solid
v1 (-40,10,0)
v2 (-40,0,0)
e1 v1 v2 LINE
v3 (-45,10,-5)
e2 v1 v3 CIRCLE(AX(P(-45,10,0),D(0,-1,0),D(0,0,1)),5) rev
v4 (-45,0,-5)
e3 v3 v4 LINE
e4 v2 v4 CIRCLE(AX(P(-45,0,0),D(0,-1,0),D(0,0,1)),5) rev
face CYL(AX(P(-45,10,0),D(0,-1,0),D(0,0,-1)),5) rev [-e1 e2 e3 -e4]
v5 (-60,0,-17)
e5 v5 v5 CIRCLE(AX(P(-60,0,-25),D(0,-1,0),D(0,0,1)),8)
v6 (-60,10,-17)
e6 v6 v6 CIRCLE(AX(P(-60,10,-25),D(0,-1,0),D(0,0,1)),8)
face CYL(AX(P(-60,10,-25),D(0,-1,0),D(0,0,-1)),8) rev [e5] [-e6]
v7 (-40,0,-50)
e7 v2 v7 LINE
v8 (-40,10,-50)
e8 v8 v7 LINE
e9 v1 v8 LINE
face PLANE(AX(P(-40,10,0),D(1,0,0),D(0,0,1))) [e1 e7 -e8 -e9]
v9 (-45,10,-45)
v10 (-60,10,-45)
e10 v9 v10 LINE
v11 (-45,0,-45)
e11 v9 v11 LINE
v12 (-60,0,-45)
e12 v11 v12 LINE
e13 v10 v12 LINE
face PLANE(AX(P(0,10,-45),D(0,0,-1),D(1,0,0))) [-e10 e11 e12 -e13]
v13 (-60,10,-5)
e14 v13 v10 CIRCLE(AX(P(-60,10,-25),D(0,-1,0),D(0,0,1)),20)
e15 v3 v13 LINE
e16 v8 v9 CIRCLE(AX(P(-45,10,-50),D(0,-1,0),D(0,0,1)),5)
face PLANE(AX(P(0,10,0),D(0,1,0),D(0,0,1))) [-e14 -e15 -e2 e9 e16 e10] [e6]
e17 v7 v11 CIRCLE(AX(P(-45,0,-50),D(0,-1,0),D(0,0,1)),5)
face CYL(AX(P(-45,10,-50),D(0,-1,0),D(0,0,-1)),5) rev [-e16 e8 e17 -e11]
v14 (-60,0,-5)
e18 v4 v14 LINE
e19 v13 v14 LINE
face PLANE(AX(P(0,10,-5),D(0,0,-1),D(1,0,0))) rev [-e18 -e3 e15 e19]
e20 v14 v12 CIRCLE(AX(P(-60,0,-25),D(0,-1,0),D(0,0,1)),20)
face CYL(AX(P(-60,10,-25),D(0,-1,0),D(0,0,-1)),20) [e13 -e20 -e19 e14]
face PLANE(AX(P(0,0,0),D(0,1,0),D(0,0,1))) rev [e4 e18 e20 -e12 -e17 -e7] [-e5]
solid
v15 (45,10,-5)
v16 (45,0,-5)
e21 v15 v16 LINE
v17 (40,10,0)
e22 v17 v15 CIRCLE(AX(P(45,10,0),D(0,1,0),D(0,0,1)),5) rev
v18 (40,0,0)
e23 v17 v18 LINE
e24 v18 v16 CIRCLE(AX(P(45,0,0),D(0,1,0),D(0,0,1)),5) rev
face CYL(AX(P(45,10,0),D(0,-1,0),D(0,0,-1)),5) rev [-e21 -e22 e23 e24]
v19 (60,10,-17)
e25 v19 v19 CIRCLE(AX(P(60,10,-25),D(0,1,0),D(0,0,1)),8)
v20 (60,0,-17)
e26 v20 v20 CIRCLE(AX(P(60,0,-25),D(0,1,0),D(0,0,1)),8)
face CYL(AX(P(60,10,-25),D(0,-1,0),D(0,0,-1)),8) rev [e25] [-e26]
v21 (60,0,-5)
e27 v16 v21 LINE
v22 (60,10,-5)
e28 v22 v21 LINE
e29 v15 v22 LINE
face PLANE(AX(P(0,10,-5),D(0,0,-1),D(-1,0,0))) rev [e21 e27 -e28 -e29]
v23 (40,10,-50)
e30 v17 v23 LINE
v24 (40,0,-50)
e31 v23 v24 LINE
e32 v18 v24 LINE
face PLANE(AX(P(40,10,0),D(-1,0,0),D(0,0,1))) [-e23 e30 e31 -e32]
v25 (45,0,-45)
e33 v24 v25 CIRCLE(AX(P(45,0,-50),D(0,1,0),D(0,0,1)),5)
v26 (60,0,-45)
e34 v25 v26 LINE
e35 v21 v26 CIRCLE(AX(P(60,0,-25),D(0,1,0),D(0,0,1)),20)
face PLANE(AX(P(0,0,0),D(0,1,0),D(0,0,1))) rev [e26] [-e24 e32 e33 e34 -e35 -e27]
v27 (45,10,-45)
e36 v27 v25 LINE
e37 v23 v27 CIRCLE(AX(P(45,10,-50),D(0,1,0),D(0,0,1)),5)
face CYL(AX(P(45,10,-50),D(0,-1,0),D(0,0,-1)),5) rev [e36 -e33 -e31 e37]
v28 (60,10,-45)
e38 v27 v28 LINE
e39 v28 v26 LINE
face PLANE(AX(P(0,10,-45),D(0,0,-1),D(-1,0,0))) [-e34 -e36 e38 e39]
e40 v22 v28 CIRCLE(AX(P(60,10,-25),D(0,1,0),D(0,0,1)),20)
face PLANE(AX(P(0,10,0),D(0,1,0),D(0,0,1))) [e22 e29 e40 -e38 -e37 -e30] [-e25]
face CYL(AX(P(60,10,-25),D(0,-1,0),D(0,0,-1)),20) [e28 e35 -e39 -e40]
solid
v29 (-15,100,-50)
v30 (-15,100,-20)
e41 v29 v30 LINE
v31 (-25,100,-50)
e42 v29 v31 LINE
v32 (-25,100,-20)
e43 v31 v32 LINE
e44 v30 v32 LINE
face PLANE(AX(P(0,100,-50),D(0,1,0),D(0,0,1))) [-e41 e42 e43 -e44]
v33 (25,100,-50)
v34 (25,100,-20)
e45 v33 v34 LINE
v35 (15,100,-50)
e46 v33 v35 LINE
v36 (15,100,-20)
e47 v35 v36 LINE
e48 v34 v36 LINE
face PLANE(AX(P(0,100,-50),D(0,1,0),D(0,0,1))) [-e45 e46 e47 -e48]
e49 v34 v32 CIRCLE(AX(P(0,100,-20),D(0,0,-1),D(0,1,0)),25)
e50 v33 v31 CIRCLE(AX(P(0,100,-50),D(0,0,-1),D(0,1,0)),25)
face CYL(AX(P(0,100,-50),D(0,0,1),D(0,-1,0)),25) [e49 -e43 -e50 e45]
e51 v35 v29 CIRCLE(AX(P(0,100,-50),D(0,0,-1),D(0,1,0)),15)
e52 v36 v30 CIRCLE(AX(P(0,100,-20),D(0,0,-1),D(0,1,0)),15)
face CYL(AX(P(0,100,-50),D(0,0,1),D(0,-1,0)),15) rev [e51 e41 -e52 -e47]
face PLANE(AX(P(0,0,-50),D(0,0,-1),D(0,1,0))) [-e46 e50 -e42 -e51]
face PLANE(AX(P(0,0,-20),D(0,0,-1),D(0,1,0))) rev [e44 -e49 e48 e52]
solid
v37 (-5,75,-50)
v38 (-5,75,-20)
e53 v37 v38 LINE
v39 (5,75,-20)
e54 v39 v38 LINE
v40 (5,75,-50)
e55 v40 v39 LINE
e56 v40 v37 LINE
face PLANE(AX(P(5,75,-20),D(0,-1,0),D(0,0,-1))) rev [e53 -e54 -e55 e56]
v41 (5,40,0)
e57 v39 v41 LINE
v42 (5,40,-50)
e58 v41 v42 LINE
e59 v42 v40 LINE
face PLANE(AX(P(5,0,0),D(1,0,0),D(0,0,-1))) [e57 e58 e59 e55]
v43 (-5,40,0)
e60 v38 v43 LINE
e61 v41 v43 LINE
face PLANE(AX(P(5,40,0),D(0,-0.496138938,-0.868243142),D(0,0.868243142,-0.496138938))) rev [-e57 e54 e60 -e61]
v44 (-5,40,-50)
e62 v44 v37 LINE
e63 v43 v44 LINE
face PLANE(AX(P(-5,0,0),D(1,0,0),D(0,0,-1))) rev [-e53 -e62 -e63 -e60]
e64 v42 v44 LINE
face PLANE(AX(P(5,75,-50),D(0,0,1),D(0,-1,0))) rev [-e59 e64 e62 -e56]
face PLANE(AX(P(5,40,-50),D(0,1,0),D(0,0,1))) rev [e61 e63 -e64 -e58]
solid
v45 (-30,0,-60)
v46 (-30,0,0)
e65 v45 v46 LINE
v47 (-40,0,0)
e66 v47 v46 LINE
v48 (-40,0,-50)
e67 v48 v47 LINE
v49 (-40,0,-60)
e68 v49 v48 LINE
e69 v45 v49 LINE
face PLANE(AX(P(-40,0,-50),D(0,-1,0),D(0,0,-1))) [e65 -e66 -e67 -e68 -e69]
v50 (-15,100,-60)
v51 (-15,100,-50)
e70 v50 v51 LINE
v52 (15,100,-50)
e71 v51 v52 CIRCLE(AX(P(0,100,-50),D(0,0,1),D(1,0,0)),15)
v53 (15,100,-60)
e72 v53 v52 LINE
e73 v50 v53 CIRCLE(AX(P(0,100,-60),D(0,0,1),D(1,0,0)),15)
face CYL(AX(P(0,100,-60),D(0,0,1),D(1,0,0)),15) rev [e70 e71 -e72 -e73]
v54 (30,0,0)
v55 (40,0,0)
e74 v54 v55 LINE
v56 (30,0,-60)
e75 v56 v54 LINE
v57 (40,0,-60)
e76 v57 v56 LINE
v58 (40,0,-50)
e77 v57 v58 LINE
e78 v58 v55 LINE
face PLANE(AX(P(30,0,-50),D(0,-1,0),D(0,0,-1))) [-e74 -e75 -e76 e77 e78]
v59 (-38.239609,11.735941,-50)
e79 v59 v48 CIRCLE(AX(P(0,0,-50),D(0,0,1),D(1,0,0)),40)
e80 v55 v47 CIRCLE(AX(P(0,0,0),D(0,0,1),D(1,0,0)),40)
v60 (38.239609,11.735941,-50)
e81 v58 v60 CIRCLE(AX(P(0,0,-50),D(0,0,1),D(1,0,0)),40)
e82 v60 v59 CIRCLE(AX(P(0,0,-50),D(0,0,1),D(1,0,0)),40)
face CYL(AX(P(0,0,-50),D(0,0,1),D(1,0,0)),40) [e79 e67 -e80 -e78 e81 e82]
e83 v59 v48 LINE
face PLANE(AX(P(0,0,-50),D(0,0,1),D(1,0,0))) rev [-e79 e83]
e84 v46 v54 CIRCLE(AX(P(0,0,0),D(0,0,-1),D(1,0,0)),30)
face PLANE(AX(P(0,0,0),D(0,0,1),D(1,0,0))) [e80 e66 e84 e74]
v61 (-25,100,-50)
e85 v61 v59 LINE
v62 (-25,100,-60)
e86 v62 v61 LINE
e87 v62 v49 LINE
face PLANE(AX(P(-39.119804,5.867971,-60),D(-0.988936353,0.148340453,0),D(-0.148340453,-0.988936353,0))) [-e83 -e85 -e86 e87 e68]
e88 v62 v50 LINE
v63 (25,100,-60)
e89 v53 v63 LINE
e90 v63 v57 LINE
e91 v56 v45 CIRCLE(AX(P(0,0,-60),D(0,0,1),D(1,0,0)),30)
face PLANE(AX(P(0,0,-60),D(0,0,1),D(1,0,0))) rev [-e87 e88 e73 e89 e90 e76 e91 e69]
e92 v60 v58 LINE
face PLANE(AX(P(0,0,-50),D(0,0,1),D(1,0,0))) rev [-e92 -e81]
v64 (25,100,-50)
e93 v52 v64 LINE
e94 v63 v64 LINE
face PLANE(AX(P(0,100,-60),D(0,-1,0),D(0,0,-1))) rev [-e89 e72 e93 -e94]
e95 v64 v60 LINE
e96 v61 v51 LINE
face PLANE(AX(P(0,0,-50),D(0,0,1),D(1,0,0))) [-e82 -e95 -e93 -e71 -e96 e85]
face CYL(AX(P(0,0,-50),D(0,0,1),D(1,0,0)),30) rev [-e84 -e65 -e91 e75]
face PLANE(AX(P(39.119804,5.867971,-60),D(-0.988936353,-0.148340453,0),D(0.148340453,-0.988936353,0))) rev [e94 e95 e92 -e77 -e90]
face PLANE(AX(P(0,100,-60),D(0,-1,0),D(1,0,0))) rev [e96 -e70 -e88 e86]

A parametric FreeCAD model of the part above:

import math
import FreeCAD as App
import Part
import Sketcher
from FreeCAD import Vector


def add_polygon(sketch, points):
    """Adds a closed chain of lines whose ends are joined by coincident constraints."""
    first, n = sketch.GeometryCount, len(points)
    for a, b in zip(points, points[1:] + points[:1]):
        sketch.addGeometry(Part.LineSegment(App.Vector(*a, 0), App.Vector(*b, 0)), False)
    for i in range(n):
        sketch.addConstraint(Sketcher.Constraint("Coincident", first + i, 2, first + (i + 1) % n, 1))

doc = App.newDocument("Part")
body = doc.addObject("PartDesign::Body", "Body")

# Sketch on XY plane
sketch1 = body.newObject("Sketcher::SketchObject", "Sketch")
sketch1.AttachmentSupport = (doc.getObject("XY_Plane"), [""])
sketch1.MapMode = "FlatFace"
sketch1.addGeometry([
    Part.LineSegment(Vector(-40, 0, 0), Vector(-30, 0, 0)),
    Part.ArcOfCircle(Part.Circle(Vector(0, 0, 0), Vector(0, 0, 1), 30), math.radians(0), math.radians(180)),
    Part.LineSegment(Vector(30, 0, 0), Vector(40, 0, 0)),
    Part.ArcOfCircle(Part.Circle(Vector(0, 0, 0), Vector(0, 0, 1), 40), math.radians(0), math.radians(180)),
], False)
sketch1.addConstraint([
    Sketcher.Constraint("Coincident", 0, 2, 1, 2),
    Sketcher.Constraint("Coincident", 1, 1, 2, 1),
    Sketcher.Constraint("Coincident", 2, 2, 3, 1),
    Sketcher.Constraint("Coincident", 3, 2, 0, 1),
    Sketcher.Constraint("Horizontal", 0),
    Sketcher.Constraint("Horizontal", 2),
    Sketcher.Constraint("Coincident", 1, 3, -1, 1),
    Sketcher.Constraint("Coincident", 3, 3, -1, 1),
    Sketcher.Constraint("PointOnObject", 0, 2, -1),
    Sketcher.Constraint("PointOnObject", 1, 1, -1),
    Sketcher.Constraint("Radius", 1, 30.0),
    Sketcher.Constraint("Radius", 3, 40.0),
])
pad1 = body.newObject("PartDesign::Pad", "Pad")
pad1.Profile = sketch1
pad1.Length = 50
pad1.Reversed = True
body2 = doc.addObject("PartDesign::Body", "Body001")

# Sketch on YZ plane
sketch2 = body2.newObject("Sketcher::SketchObject", "Sketch001")
sketch2.AttachmentSupport = (doc.getObject("YZ_Plane001"), [""])
sketch2.MapMode = "FlatFace"
add_polygon(sketch2, [(75, -20), (40, 0), (40, -50), (75, -50)])  # lines 0-3
sketch2.addConstraint([
    Sketcher.Constraint("Vertical", 1),
    Sketcher.Constraint("Horizontal", 2),
    Sketcher.Constraint("Vertical", 3),
    Sketcher.Constraint("PointOnObject", 0, 2, -1),
    Sketcher.Constraint("DistanceX", 2, 1, 2, 2, 35.0),
    Sketcher.Constraint("DistanceY", 1, 2, 1, 1, 50.0),
    Sketcher.Constraint("DistanceY", 3, 1, 3, 2, 30.0),
    Sketcher.Constraint("DistanceX", -1, 1, 0, 2, 40.0),
])
pad2 = body2.newObject("PartDesign::Pad", "Pad001")
pad2.Profile = sketch2
pad2.Length = 10
pad2.Midplane = True
body3 = doc.addObject("PartDesign::Body", "Body002")

# Sketch on XY plane
sketch3 = body3.newObject("Sketcher::SketchObject", "Sketch002")
sketch3.AttachmentSupport = (doc.getObject("XY_Plane002"), [""])
sketch3.MapMode = "FlatFace"
sketch3.AttachmentOffset = App.Placement(Vector(0, 0, -20), App.Rotation())
sketch3.addGeometry([
    Part.LineSegment(Vector(15, 100, 0), Vector(25, 100, 0)),
    Part.ArcOfCircle(Part.Circle(Vector(0, 100, 0), Vector(0, 0, 1), 25), math.radians(180), math.radians(360)),
    Part.LineSegment(Vector(-25, 100, 0), Vector(-15, 100, 0)),
    Part.ArcOfCircle(Part.Circle(Vector(0, 100, 0), Vector(0, 0, 1), 15), math.radians(180), math.radians(360)),
], False)
sketch3.addConstraint([
    Sketcher.Constraint("Coincident", 0, 2, 1, 2),
    Sketcher.Constraint("Coincident", 1, 1, 2, 1),
    Sketcher.Constraint("Coincident", 2, 2, 3, 1),
    Sketcher.Constraint("Coincident", 3, 2, 0, 1),
    Sketcher.Constraint("Horizontal", 0),
    Sketcher.Constraint("Horizontal", 2),
    Sketcher.Constraint("Coincident", 3, 3, 1, 3),
    Sketcher.Constraint("Symmetric", 0, 2, 1, 1, -2),
    Sketcher.Constraint("Horizontal", 3, 3, 0, 2),
    Sketcher.Constraint("Radius", 1, 25.0),
    Sketcher.Constraint("Radius", 3, 15.0),
    Sketcher.Constraint("DistanceY", -1, 1, 1, 3, 100.0),
])
pad3 = body3.newObject("PartDesign::Pad", "Pad002")
pad3.Profile = sketch3
pad3.Length = 30
pad3.Reversed = True
body4 = doc.addObject("PartDesign::Body", "Body003")

# Sketch on XY plane
sketch4 = body4.newObject("Sketcher::SketchObject", "Sketch003")
sketch4.AttachmentSupport = (doc.getObject("XY_Plane003"), [""])
sketch4.MapMode = "FlatFace"
sketch4.AttachmentOffset = App.Placement(Vector(0, 0, -50), App.Rotation())
sketch4.addGeometry([
    Part.LineSegment(Vector(-25, 100, 0), Vector(-40, 0, 0)),  # 0
    Part.LineSegment(Vector(-40, 0, 0), Vector(-30, 0, 0)),  # 1
    Part.ArcOfCircle(Part.Circle(Vector(0, 0, 0), Vector(0, 0, 1), 30), math.radians(0), math.radians(180)),  # 2
    Part.LineSegment(Vector(30, 0, 0), Vector(40, 0, 0)),  # 3
    Part.LineSegment(Vector(40, 0, 0), Vector(25, 100, 0)),  # 4
    Part.LineSegment(Vector(25, 100, 0), Vector(15, 100, 0)),  # 5
    Part.ArcOfCircle(Part.Circle(Vector(0, 100, 0), Vector(0, 0, 1), 15), math.radians(180), math.radians(360)),  # 6
    Part.LineSegment(Vector(-15, 100, 0), Vector(-25, 100, 0)),  # 7
], False)
sketch4.addConstraint([
    Sketcher.Constraint("Coincident", 0, 2, 1, 1),
    Sketcher.Constraint("Coincident", 1, 2, 2, 2),
    Sketcher.Constraint("Coincident", 2, 1, 3, 1),
    Sketcher.Constraint("Coincident", 3, 2, 4, 1),
    Sketcher.Constraint("Coincident", 4, 2, 5, 1),
    Sketcher.Constraint("Coincident", 5, 2, 6, 2),
    Sketcher.Constraint("Coincident", 6, 1, 7, 1),
    Sketcher.Constraint("Coincident", 7, 2, 0, 1),
    Sketcher.Constraint("Horizontal", 1),
    Sketcher.Constraint("Horizontal", 3),
    Sketcher.Constraint("Horizontal", 5),
    Sketcher.Constraint("Horizontal", 7),
    Sketcher.Constraint("Coincident", 2, 3, -1, 1),
    Sketcher.Constraint("Symmetric", 0, 2, 3, 2, -1, 1),
    Sketcher.Constraint("Symmetric", 5, 2, 6, 1, -2),
    Sketcher.Constraint("PointOnObject", 0, 2, -1),
    Sketcher.Constraint("Horizontal", 6, 3, 4, 2),
    Sketcher.Constraint("Equal", 3, 5),
    Sketcher.Constraint("Equal", 5, 7),
    Sketcher.Constraint("Radius", 2, 30.0),
    Sketcher.Constraint("Radius", 6, 15.0),
    Sketcher.Constraint("DistanceX", 1, 1, 1, 2, 10.0),
    Sketcher.Constraint("DistanceY", -1, 1, 6, 3, 100.0),
])
pad4 = body4.newObject("PartDesign::Pad", "Pad003")
pad4.Profile = sketch4
pad4.Length = 10
pad4.Reversed = True
body.AllowCompound = True
doc.recompute()

boolean = body.newObject("PartDesign::Boolean", "Boolean")
boolean.Type = "Fuse"
boolean.addObjects([body4])

# Sketch on XZ plane
sketch5 = body.newObject("Sketcher::SketchObject", "Sketch004")
sketch5.AttachmentSupport = (doc.getObject("XZ_Plane"), [""])
sketch5.MapMode = "FlatFace"
sketch5.addGeometry([
    Part.LineSegment(Vector(60, -45, 0), Vector(45, -45, 0)),  # 0
    Part.ArcOfCircle(Part.Circle(Vector(45, -50, 0), Vector(0, 0, 1), 5), math.radians(90), math.radians(180)),  # 1
    Part.LineSegment(Vector(40, -50, 0), Vector(40, 0, 0)),  # 2
    Part.ArcOfCircle(Part.Circle(Vector(45, 0, 0), Vector(0, 0, 1), 5), math.radians(180), math.radians(270)),  # 3
    Part.LineSegment(Vector(45, -5, 0), Vector(60, -5, 0)),  # 4
    Part.ArcOfCircle(Part.Circle(Vector(60, -25, 0), Vector(0, 0, 1), 20), math.radians(-90), math.radians(90)),  # 5
    Part.Circle(Vector(60, -25, 0), Vector(0, 0, 1), 8),  # 6
], False)
sketch5.addConstraint([
    Sketcher.Constraint("Tangent", 0, 2, 1, 1),
    Sketcher.Constraint("Tangent", 1, 2, 2, 1),
    Sketcher.Constraint("Tangent", 2, 2, 3, 1),
    Sketcher.Constraint("Tangent", 3, 2, 4, 1),
    Sketcher.Constraint("Tangent", 4, 2, 5, 2),
    Sketcher.Constraint("Tangent", 5, 1, 0, 1),
    Sketcher.Constraint("Horizontal", 0),
    Sketcher.Constraint("Vertical", 2),
    Sketcher.Constraint("Horizontal", 4),
    Sketcher.Constraint("Coincident", 6, 3, 5, 3),
    Sketcher.Constraint("Equal", 1, 3),
    Sketcher.Constraint("PointOnObject", 3, 3, -1),
    Sketcher.Constraint("Diameter", 6, 16.0),
    Sketcher.Constraint("Radius", 1, 5.0),
    Sketcher.Constraint("Radius", 5, 20.0),
    Sketcher.Constraint("DistanceX", 0, 2, 0, 1, 15.0),
    Sketcher.Constraint("DistanceX", -1, 1, 1, 3, 45.0),
])
pad5 = body.newObject("PartDesign::Pad", "Pad004")
pad5.Profile = sketch5
pad5.Length = 10
pad5.Reversed = True
body5 = doc.addObject("PartDesign::Body", "Body004")
body5.AllowCompound = True
doc.recompute()

body5.BaseFeature = body
doc.recompute()

mirroring = doc.addObject("Part::Mirroring", "Mirroring")
mirroring.Source = body
mirroring.Base = Vector(0, 0, 0)
mirroring.Normal = Vector(1, 0, 0)
body6 = doc.addObject("PartDesign::Body", "Body005")
body6.BaseFeature = mirroring
boolean2 = body5.newObject("PartDesign::Boolean", "Boolean001")
boolean2.Type = "Fuse"
boolean2.addObjects([body6])
doc.recompute()
mirroring.Visibility = False

doc.recompute()
